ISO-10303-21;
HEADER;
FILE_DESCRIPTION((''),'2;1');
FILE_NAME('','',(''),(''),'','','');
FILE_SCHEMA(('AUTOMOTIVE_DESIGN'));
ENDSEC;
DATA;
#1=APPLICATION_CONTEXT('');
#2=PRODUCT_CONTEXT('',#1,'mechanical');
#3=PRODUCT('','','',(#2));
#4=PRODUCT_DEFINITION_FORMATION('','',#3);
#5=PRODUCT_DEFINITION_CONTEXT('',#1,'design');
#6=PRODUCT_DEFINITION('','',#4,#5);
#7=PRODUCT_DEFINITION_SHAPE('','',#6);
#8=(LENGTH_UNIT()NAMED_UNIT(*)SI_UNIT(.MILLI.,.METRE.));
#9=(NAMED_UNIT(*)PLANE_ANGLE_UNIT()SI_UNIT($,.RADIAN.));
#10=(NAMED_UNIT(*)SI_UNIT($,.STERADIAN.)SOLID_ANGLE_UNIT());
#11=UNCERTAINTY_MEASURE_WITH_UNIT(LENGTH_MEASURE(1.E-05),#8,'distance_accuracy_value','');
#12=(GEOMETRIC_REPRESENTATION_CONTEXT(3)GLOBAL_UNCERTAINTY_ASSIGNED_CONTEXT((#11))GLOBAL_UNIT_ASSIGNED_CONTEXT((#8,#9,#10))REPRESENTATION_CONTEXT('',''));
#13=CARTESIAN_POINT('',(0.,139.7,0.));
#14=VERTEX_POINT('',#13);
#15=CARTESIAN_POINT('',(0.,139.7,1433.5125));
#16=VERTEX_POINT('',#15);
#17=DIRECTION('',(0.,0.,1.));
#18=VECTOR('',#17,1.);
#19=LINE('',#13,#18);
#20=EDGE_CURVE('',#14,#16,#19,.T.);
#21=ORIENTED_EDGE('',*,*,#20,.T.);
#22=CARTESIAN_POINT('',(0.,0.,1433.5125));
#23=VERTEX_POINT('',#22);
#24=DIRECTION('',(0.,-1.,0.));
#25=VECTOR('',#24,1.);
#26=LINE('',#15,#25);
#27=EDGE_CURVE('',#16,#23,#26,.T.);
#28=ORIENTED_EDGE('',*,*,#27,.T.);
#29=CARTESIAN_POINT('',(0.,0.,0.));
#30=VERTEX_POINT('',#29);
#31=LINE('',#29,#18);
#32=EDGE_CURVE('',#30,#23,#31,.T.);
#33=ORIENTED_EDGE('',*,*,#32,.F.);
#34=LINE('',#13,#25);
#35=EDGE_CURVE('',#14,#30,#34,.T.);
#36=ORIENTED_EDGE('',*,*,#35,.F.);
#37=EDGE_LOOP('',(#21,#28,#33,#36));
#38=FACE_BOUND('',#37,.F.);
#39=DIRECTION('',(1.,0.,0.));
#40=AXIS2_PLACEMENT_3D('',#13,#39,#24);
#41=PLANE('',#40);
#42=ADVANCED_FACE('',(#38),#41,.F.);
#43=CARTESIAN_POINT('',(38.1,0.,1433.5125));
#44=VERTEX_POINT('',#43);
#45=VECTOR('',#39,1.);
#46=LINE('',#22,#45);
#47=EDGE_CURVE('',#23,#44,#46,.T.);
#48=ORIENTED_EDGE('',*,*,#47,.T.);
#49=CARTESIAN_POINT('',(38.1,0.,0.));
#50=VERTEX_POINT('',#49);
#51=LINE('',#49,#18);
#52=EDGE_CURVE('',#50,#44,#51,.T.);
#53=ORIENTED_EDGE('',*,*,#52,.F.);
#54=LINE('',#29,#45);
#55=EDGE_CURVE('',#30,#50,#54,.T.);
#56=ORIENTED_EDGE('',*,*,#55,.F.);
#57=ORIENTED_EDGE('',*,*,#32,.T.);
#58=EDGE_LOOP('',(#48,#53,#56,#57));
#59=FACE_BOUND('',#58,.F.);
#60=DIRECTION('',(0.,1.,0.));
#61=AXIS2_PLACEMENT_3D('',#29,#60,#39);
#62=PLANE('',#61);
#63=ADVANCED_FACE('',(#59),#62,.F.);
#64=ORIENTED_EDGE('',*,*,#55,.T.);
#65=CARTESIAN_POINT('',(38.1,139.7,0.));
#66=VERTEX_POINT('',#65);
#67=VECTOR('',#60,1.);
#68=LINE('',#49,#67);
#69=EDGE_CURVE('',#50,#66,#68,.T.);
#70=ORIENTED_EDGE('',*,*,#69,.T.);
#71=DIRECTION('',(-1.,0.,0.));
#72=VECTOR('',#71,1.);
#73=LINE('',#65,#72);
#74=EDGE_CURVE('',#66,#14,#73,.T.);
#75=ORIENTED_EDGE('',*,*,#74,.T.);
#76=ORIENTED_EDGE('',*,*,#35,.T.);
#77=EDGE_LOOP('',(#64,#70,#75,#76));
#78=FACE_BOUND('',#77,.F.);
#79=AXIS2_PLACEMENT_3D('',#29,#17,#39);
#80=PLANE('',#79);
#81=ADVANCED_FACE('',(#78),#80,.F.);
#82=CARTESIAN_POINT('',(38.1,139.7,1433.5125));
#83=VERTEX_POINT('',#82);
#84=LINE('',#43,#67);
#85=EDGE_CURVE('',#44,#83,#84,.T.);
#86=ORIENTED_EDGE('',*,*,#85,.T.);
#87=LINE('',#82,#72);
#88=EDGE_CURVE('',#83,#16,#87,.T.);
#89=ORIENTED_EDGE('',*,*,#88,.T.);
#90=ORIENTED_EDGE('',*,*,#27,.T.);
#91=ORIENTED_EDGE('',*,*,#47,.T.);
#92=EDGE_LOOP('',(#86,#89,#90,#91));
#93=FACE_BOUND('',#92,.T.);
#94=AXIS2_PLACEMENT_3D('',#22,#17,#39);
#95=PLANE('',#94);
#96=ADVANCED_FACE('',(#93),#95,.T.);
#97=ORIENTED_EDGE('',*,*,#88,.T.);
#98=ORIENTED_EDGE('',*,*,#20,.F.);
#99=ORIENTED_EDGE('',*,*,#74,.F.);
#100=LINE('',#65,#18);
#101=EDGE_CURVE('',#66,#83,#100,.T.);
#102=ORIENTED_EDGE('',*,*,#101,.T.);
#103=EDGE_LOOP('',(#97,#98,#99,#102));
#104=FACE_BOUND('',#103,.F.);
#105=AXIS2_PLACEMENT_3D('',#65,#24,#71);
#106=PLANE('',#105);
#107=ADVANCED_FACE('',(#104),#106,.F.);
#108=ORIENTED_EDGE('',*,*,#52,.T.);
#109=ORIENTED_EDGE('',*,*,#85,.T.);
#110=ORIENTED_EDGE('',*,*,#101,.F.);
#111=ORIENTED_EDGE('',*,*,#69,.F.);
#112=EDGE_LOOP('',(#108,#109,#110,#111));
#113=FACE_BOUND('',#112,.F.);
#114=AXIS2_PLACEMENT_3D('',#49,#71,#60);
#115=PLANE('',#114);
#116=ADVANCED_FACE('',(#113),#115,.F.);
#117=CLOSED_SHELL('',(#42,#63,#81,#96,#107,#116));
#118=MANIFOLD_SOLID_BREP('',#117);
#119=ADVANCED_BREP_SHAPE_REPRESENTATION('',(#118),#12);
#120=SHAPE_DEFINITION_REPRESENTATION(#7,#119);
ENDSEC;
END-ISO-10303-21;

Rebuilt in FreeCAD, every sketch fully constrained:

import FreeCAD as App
import Part
import Sketcher
Q = App.Units.Quantity


def add_polygon(sketch, points):
    """Adds a closed chain of lines whose ends are joined by coincident constraints."""
    first, n = sketch.GeometryCount, len(points)
    for a, b in zip(points, points[1:] + points[:1]):
        sketch.addGeometry(Part.LineSegment(App.Vector(*a, 0), App.Vector(*b, 0)), False)
    for i in range(n):
        sketch.addConstraint(Sketcher.Constraint("Coincident", first + i, 2, first + (i + 1) % n, 1))

doc = App.newDocument("Part")
body = doc.addObject("PartDesign::Body", "Body")

sketch1 = body.newObject("Sketcher::SketchObject", "Sketch")
sketch1.AttachmentSupport = (doc.getObject("XY_Plane"), [""])
sketch1.MapMode = "FlatFace"
add_polygon(sketch1, [(0, 139.7), (0, 0), (38.1, 0), (38.1, 139.7)])
sketch1.addConstraint(Sketcher.Constraint("Vertical", 0))
sketch1.addConstraint(Sketcher.Constraint("Horizontal", 1))
sketch1.addConstraint(Sketcher.Constraint("Vertical", 2))
sketch1.addConstraint(Sketcher.Constraint("Horizontal", 3))
sketch1.addConstraint(Sketcher.Constraint("Coincident", 0, 2, -1, 1))
sketch1.addConstraint(Sketcher.Constraint("DistanceX", 1, 1, 1, 2, Q("1.5 in")))
sketch1.addConstraint(Sketcher.Constraint("DistanceY", 0, 2, 0, 1, Q("5.5 in")))
pad1 = body.newObject("PartDesign::Pad", "Pad")
pad1.Profile = sketch1
pad1.Length = Q("56.4375 in")

doc.recompute()
